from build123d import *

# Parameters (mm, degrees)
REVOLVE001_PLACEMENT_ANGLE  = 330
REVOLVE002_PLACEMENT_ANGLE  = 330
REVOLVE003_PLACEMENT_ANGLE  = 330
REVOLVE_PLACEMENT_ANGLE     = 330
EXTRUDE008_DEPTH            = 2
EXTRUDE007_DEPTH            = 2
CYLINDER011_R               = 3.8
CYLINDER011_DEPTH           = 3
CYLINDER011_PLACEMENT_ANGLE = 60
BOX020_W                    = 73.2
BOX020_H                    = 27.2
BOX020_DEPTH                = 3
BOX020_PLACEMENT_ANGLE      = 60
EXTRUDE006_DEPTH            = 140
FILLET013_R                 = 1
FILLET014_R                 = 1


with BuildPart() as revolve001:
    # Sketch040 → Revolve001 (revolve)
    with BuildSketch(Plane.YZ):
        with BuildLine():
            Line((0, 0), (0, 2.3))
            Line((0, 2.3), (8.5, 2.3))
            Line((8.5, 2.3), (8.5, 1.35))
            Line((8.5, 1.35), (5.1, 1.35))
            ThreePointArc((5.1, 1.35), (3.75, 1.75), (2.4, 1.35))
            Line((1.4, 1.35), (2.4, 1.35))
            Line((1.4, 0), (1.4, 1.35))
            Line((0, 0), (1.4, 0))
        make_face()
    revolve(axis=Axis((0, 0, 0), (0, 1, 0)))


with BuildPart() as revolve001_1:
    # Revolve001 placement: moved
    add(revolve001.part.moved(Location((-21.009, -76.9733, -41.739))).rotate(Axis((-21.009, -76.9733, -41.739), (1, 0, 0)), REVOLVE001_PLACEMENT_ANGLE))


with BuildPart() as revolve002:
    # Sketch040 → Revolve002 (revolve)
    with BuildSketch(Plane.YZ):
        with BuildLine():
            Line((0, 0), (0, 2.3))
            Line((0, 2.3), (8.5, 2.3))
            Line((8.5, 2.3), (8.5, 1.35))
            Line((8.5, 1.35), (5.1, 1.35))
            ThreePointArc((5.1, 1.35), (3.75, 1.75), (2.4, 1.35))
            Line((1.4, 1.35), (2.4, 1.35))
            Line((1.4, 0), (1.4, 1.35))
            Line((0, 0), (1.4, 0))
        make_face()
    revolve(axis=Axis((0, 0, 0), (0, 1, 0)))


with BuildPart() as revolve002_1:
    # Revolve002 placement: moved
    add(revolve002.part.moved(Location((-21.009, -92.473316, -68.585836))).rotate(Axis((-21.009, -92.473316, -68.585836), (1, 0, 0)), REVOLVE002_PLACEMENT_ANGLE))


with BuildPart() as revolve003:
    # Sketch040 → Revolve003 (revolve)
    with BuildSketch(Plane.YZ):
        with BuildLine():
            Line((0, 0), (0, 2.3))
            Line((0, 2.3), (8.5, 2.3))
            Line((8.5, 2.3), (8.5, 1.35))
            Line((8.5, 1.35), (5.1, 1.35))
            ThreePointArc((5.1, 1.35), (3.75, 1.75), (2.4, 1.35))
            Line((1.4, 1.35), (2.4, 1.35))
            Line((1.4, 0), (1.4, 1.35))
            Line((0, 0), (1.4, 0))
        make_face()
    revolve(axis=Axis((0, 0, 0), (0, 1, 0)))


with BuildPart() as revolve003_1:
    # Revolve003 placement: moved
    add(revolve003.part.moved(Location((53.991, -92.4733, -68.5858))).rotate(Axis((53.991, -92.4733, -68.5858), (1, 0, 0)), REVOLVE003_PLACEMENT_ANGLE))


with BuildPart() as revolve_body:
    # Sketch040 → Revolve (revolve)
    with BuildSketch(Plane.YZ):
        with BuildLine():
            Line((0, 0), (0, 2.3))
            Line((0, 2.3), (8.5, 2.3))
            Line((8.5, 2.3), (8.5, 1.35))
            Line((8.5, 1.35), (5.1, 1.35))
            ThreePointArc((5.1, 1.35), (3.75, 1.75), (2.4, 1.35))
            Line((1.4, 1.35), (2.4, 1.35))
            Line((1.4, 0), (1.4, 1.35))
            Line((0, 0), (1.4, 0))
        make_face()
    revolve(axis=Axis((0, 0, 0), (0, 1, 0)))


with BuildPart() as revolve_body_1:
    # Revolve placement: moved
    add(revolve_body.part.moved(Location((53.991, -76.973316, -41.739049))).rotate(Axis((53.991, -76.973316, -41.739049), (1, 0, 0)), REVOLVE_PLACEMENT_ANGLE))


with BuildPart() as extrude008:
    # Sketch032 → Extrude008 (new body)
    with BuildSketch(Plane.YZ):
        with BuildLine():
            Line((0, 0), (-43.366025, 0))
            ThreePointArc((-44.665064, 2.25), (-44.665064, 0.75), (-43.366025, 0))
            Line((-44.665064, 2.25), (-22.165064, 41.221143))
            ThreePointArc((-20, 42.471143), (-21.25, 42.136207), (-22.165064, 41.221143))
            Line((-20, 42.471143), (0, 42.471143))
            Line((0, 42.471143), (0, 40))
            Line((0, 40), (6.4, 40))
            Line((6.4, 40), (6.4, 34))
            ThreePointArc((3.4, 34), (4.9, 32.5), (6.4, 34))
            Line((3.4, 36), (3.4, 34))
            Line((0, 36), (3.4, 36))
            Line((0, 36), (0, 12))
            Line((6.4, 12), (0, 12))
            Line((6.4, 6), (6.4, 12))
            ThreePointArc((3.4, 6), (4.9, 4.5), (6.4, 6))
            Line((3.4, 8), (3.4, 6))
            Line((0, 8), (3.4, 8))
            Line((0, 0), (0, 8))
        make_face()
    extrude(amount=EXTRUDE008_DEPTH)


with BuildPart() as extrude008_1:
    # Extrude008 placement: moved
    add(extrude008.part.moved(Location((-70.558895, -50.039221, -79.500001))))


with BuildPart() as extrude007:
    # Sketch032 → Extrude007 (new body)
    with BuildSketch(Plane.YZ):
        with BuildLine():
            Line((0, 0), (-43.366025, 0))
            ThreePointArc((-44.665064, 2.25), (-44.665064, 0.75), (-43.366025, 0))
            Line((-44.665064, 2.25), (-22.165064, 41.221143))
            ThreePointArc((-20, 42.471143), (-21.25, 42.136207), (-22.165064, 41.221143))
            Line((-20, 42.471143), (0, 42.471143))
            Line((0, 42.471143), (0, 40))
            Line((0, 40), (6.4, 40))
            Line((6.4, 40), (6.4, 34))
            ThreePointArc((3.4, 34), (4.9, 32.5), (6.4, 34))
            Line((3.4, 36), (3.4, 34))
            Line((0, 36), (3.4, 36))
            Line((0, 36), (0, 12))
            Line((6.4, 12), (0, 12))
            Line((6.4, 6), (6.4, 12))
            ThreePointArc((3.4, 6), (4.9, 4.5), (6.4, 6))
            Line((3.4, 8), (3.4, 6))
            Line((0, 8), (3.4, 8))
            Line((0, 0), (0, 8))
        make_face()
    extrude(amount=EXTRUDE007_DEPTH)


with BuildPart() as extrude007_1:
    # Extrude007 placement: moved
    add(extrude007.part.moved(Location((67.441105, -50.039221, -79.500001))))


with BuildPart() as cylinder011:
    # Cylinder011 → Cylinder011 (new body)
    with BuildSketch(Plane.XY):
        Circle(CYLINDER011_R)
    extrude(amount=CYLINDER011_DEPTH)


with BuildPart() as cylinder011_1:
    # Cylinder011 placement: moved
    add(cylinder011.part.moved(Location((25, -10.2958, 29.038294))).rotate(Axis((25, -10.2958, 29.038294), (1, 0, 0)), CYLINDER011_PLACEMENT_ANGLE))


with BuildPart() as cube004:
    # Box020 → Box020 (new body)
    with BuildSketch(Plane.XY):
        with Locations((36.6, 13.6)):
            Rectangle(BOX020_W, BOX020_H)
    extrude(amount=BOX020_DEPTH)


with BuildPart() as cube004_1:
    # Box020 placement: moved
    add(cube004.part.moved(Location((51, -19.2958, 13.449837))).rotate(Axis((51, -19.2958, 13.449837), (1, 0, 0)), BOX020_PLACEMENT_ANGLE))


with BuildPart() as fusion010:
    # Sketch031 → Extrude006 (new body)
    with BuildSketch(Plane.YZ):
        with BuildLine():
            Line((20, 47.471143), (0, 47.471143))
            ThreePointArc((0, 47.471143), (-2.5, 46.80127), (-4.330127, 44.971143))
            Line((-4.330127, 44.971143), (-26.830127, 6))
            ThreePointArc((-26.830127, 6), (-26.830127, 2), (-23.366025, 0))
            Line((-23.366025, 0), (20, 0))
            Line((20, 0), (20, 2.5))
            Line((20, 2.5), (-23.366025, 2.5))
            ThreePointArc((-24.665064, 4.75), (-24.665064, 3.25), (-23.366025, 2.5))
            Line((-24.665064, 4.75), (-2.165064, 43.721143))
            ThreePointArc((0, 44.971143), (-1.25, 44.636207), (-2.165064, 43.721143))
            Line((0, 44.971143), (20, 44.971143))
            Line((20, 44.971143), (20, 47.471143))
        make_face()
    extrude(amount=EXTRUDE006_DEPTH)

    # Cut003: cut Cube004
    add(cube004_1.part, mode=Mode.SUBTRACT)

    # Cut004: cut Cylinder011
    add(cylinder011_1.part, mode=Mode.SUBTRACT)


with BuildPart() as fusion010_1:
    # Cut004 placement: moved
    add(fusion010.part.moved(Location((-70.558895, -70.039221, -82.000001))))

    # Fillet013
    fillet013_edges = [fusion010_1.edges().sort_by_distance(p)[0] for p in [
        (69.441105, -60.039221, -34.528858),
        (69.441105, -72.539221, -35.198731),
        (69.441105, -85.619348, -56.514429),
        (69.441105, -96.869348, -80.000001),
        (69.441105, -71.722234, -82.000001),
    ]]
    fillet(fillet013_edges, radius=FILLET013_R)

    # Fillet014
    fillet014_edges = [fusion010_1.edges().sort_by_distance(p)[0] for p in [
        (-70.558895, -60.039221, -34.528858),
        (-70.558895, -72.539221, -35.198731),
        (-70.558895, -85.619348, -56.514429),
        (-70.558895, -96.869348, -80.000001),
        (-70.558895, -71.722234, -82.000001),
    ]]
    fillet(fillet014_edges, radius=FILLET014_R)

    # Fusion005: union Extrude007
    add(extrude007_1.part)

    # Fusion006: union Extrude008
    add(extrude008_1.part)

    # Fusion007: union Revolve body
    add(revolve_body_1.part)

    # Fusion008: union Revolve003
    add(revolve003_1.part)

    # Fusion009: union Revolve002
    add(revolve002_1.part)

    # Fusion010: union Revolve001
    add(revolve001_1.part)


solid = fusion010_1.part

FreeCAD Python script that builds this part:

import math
import FreeCAD as App
import Part
import Sketcher
Q = App.Units.Quantity


def edges_at(feature, points):
    """Names of the edges that pass closest to the given points."""
    edges = feature.Shape.Edges
    near = lambda p: min(range(len(edges)), key=lambda i: edges[i].distToShape(Part.Vertex(*p))[0])
    return sorted({f"Edge{near(p) + 1}" for p in points})

doc = App.newDocument("Part")
body = doc.addObject("PartDesign::Body", "Body")

sketch1 = doc.addObject("Sketcher::SketchObject", "Sketch")
body.addObject(sketch1)
sketch1.AttachmentSupport = (doc.YZ_Plane, [""])
sketch1.MapMode = "FlatFace"
sketch1.addGeometry([
    Part.LineSegment(App.Vector(0, 2.3, 0), App.Vector(0, 0, 0)),
    Part.LineSegment(App.Vector(0, 0, 0), App.Vector(1.4, 0, 0)),
    Part.LineSegment(App.Vector(1.4, 0, 0), App.Vector(1.4, 1.4, 0)),
    Part.LineSegment(App.Vector(1.4, 1.4, 0), App.Vector(2.4, 1.4, 0)),
    Part.ArcOfCircle(Part.Circle(App.Vector(3.8, -0.7, 0), App.Vector(0, 0, 1), 2.5), math.radians(57), math.radians(123)),
    Part.LineSegment(App.Vector(5.1, 1.4, 0), App.Vector(8.5, 1.4, 0)),
    Part.LineSegment(App.Vector(8.5, 1.4, 0), App.Vector(8.5, 2.3, 0)),
    Part.LineSegment(App.Vector(8.5, 2.3, 0), App.Vector(0, 2.3, 0)),
], False)
sketch1.addConstraint([
    Sketcher.Constraint("Coincident", 0, 2, 1, 1),
    Sketcher.Constraint("Coincident", 1, 2, 2, 1),
    Sketcher.Constraint("Coincident", 2, 2, 3, 1),
    Sketcher.Constraint("Coincident", 3, 2, 4, 2),
    Sketcher.Constraint("Coincident", 4, 1, 5, 1),
    Sketcher.Constraint("Coincident", 5, 2, 6, 1),
    Sketcher.Constraint("Coincident", 6, 2, 7, 1),
    Sketcher.Constraint("Coincident", 7, 2, 0, 1),
    Sketcher.Constraint("Vertical", 0),
    Sketcher.Constraint("Horizontal", 1),
    Sketcher.Constraint("Vertical", 2),
    Sketcher.Constraint("Horizontal", 3),
    Sketcher.Constraint("Horizontal", 5),
    Sketcher.Constraint("Vertical", 6),
    Sketcher.Constraint("Horizontal", 7),
    Sketcher.Constraint("Coincident", 0, 2, -1, 1),
    Sketcher.Constraint("Horizontal", 3, 2, 4, 1),
    Sketcher.Constraint("DistanceX", 3, 1, 3, 2, Q("1 mm")),
    Sketcher.Constraint("DistanceX", 1, 1, 1, 2, Q("1.4 mm")),
    Sketcher.Constraint("DistanceX", 5, 1, 5, 2, Q("3.4 mm")),
    Sketcher.Constraint("DistanceX", 7, 2, 7, 1, Q("8.5 mm")),
    Sketcher.Constraint("DistanceY", 0, 2, 0, 1, Q("2.3 mm")),
    Sketcher.Constraint("DistanceY", 2, 1, 2, 2, Q("1.35 mm")),
    Sketcher.Constraint("Radius", 4, Q("2.478125 mm")),
])
revolution = doc.addObject("PartDesign::Revolution", "Revolution")
body.addObject(revolution)
revolution.Profile = sketch1
revolution.ReferenceAxis = (sketch1, ["H_Axis"])
revolution.Angle = 360
body2 = doc.addObject("PartDesign::Body", "Body001")
doc.recompute()

body.Placement = App.Placement(App.Vector(-21.009, -76.9733, -41.739), App.Rotation(App.Vector(1, 0, 0), 330))
boolean = doc.addObject("PartDesign::Boolean", "Boolean")
body2.addObject(boolean)
boolean.Type = "Fuse"
boolean.addObjects([body])
body3 = doc.addObject("PartDesign::Body", "Body002")

sketch2 = doc.addObject("Sketcher::SketchObject", "Sketch001")
body3.addObject(sketch2)
sketch2.AttachmentSupport = (doc.getObject("YZ_Plane002"), [""])
sketch2.MapMode = "FlatFace"
sketch2.addGeometry([
    Part.LineSegment(App.Vector(0, 2.3, 0), App.Vector(0, 0, 0)),
    Part.LineSegment(App.Vector(0, 0, 0), App.Vector(1.4, 0, 0)),
    Part.LineSegment(App.Vector(1.4, 0, 0), App.Vector(1.4, 1.4, 0)),
    Part.LineSegment(App.Vector(1.4, 1.4, 0), App.Vector(2.4, 1.4, 0)),
    Part.ArcOfCircle(Part.Circle(App.Vector(3.8, -0.7, 0), App.Vector(0, 0, 1), 2.5), math.radians(57), math.radians(123)),
    Part.LineSegment(App.Vector(5.1, 1.4, 0), App.Vector(8.5, 1.4, 0)),
    Part.LineSegment(App.Vector(8.5, 1.4, 0), App.Vector(8.5, 2.3, 0)),
    Part.LineSegment(App.Vector(8.5, 2.3, 0), App.Vector(0, 2.3, 0)),
], False)
sketch2.addConstraint([
    Sketcher.Constraint("Coincident", 0, 2, 1, 1),
    Sketcher.Constraint("Coincident", 1, 2, 2, 1),
    Sketcher.Constraint("Coincident", 2, 2, 3, 1),
    Sketcher.Constraint("Coincident", 3, 2, 4, 2),
    Sketcher.Constraint("Coincident", 4, 1, 5, 1),
    Sketcher.Constraint("Coincident", 5, 2, 6, 1),
    Sketcher.Constraint("Coincident", 6, 2, 7, 1),
    Sketcher.Constraint("Coincident", 7, 2, 0, 1),
    Sketcher.Constraint("Vertical", 0),
    Sketcher.Constraint("Horizontal", 1),
    Sketcher.Constraint("Vertical", 2),
    Sketcher.Constraint("Horizontal", 3),
    Sketcher.Constraint("Horizontal", 5),
    Sketcher.Constraint("Vertical", 6),
    Sketcher.Constraint("Horizontal", 7),
    Sketcher.Constraint("Coincident", 0, 2, -1, 1),
    Sketcher.Constraint("Horizontal", 3, 2, 4, 1),
    Sketcher.Constraint("DistanceX", 3, 1, 3, 2, Q("1 mm")),
    Sketcher.Constraint("DistanceX", 1, 1, 1, 2, Q("1.4 mm")),
    Sketcher.Constraint("DistanceX", 5, 1, 5, 2, Q("3.4 mm")),
    Sketcher.Constraint("DistanceX", 7, 2, 7, 1, Q("8.5 mm")),
    Sketcher.Constraint("DistanceY", 0, 2, 0, 1, Q("2.3 mm")),
    Sketcher.Constraint("DistanceY", 2, 1, 2, 2, Q("1.35 mm")),
    Sketcher.Constraint("Radius", 4, Q("2.478125 mm")),
])
revolution2 = doc.addObject("PartDesign::Revolution", "Revolution001")
body3.addObject(revolution2)
revolution2.Profile = sketch2
revolution2.ReferenceAxis = (sketch2, ["H_Axis"])
revolution2.Angle = 360
body4 = doc.addObject("PartDesign::Body", "Body003")
doc.recompute()

body3.Placement = App.Placement(App.Vector(-21.009, -92.473316, -68.585836), App.Rotation(App.Vector(1, 0, 0), 330))
boolean2 = doc.addObject("PartDesign::Boolean", "Boolean001")
body4.addObject(boolean2)
boolean2.Type = "Fuse"
boolean2.addObjects([body3])
body5 = doc.addObject("PartDesign::Body", "Body004")

sketch3 = doc.addObject("Sketcher::SketchObject", "Sketch002")
body5.addObject(sketch3)
sketch3.AttachmentSupport = (doc.getObject("YZ_Plane004"), [""])
sketch3.MapMode = "FlatFace"
sketch3.addGeometry([
    Part.LineSegment(App.Vector(0, 2.3, 0), App.Vector(0, 0, 0)),
    Part.LineSegment(App.Vector(0, 0, 0), App.Vector(1.4, 0, 0)),
    Part.LineSegment(App.Vector(1.4, 0, 0), App.Vector(1.4, 1.4, 0)),
    Part.LineSegment(App.Vector(1.4, 1.4, 0), App.Vector(2.4, 1.4, 0)),
    Part.ArcOfCircle(Part.Circle(App.Vector(3.8, -0.7, 0), App.Vector(0, 0, 1), 2.5), math.radians(57), math.radians(123)),
    Part.LineSegment(App.Vector(5.1, 1.4, 0), App.Vector(8.5, 1.4, 0)),
    Part.LineSegment(App.Vector(8.5, 1.4, 0), App.Vector(8.5, 2.3, 0)),
    Part.LineSegment(App.Vector(8.5, 2.3, 0), App.Vector(0, 2.3, 0)),
], False)
sketch3.addConstraint([
    Sketcher.Constraint("Coincident", 0, 2, 1, 1),
    Sketcher.Constraint("Coincident", 1, 2, 2, 1),
    Sketcher.Constraint("Coincident", 2, 2, 3, 1),
    Sketcher.Constraint("Coincident", 3, 2, 4, 2),
    Sketcher.Constraint("Coincident", 4, 1, 5, 1),
    Sketcher.Constraint("Coincident", 5, 2, 6, 1),
    Sketcher.Constraint("Coincident", 6, 2, 7, 1),
    Sketcher.Constraint("Coincident", 7, 2, 0, 1),
    Sketcher.Constraint("Vertical", 0),
    Sketcher.Constraint("Horizontal", 1),
    Sketcher.Constraint("Vertical", 2),
    Sketcher.Constraint("Horizontal", 3),
    Sketcher.Constraint("Horizontal", 5),
    Sketcher.Constraint("Vertical", 6),
    Sketcher.Constraint("Horizontal", 7),
    Sketcher.Constraint("Coincident", 0, 2, -1, 1),
    Sketcher.Constraint("Horizontal", 3, 2, 4, 1),
    Sketcher.Constraint("DistanceX", 3, 1, 3, 2, Q("1 mm")),
    Sketcher.Constraint("DistanceX", 1, 1, 1, 2, Q("1.4 mm")),
    Sketcher.Constraint("DistanceX", 5, 1, 5, 2, Q("3.4 mm")),
    Sketcher.Constraint("DistanceX", 7, 2, 7, 1, Q("8.5 mm")),
    Sketcher.Constraint("DistanceY", 0, 2, 0, 1, Q("2.3 mm")),
    Sketcher.Constraint("DistanceY", 2, 1, 2, 2, Q("1.35 mm")),
    Sketcher.Constraint("Radius", 4, Q("2.478125 mm")),
])
revolution3 = doc.addObject("PartDesign::Revolution", "Revolution002")
body5.addObject(revolution3)
revolution3.Profile = sketch3
revolution3.ReferenceAxis = (sketch3, ["H_Axis"])
revolution3.Angle = 360
body6 = doc.addObject("PartDesign::Body", "Body005")
doc.recompute()

body5.Placement = App.Placement(App.Vector(53.991, -92.4733, -68.5858), App.Rotation(App.Vector(1, 0, 0), 330))
boolean3 = doc.addObject("PartDesign::Boolean", "Boolean002")
body6.addObject(boolean3)
boolean3.Type = "Fuse"
boolean3.addObjects([body5])
body7 = doc.addObject("PartDesign::Body", "Body006")

sketch4 = doc.addObject("Sketcher::SketchObject", "Sketch003")
body7.addObject(sketch4)
sketch4.AttachmentSupport = (doc.getObject("YZ_Plane006"), [""])
sketch4.MapMode = "FlatFace"
sketch4.addGeometry([
    Part.LineSegment(App.Vector(0, 2.3, 0), App.Vector(0, 0, 0)),
    Part.LineSegment(App.Vector(0, 0, 0), App.Vector(1.4, 0, 0)),
    Part.LineSegment(App.Vector(1.4, 0, 0), App.Vector(1.4, 1.4, 0)),
    Part.LineSegment(App.Vector(1.4, 1.4, 0), App.Vector(2.4, 1.4, 0)),
    Part.ArcOfCircle(Part.Circle(App.Vector(3.8, -0.7, 0), App.Vector(0, 0, 1), 2.5), math.radians(57), math.radians(123)),
    Part.LineSegment(App.Vector(5.1, 1.4, 0), App.Vector(8.5, 1.4, 0)),
    Part.LineSegment(App.Vector(8.5, 1.4, 0), App.Vector(8.5, 2.3, 0)),
    Part.LineSegment(App.Vector(8.5, 2.3, 0), App.Vector(0, 2.3, 0)),
], False)
sketch4.addConstraint([
    Sketcher.Constraint("Coincident", 0, 2, 1, 1),
    Sketcher.Constraint("Coincident", 1, 2, 2, 1),
    Sketcher.Constraint("Coincident", 2, 2, 3, 1),
    Sketcher.Constraint("Coincident", 3, 2, 4, 2),
    Sketcher.Constraint("Coincident", 4, 1, 5, 1),
    Sketcher.Constraint("Coincident", 5, 2, 6, 1),
    Sketcher.Constraint("Coincident", 6, 2, 7, 1),
    Sketcher.Constraint("Coincident", 7, 2, 0, 1),
    Sketcher.Constraint("Vertical", 0),
    Sketcher.Constraint("Horizontal", 1),
    Sketcher.Constraint("Vertical", 2),
    Sketcher.Constraint("Horizontal", 3),
    Sketcher.Constraint("Horizontal", 5),
    Sketcher.Constraint("Vertical", 6),
    Sketcher.Constraint("Horizontal", 7),
    Sketcher.Constraint("Coincident", 0, 2, -1, 1),
    Sketcher.Constraint("Horizontal", 3, 2, 4, 1),
    Sketcher.Constraint("DistanceX", 3, 1, 3, 2, Q("1 mm")),
    Sketcher.Constraint("DistanceX", 1, 1, 1, 2, Q("1.4 mm")),
    Sketcher.Constraint("DistanceX", 5, 1, 5, 2, Q("3.4 mm")),
    Sketcher.Constraint("DistanceX", 7, 2, 7, 1, Q("8.5 mm")),
    Sketcher.Constraint("DistanceY", 0, 2, 0, 1, Q("2.3 mm")),
    Sketcher.Constraint("DistanceY", 2, 1, 2, 2, Q("1.35 mm")),
    Sketcher.Constraint("Radius", 4, Q("2.478125 mm")),
])
revolution4 = doc.addObject("PartDesign::Revolution", "Revolution003")
body7.addObject(revolution4)
revolution4.Profile = sketch4
revolution4.ReferenceAxis = (sketch4, ["H_Axis"])
revolution4.Angle = 360
body8 = doc.addObject("PartDesign::Body", "Body007")
doc.recompute()

body7.Placement = App.Placement(App.Vector(53.991, -76.973316, -41.739049), App.Rotation(App.Vector(1, 0, 0), 330))
boolean4 = doc.addObject("PartDesign::Boolean", "Boolean003")
body8.addObject(boolean4)
boolean4.Type = "Fuse"
boolean4.addObjects([body7])
body9 = doc.addObject("PartDesign::Body", "Body008")

sketch5 = doc.addObject("Sketcher::SketchObject", "Sketch004")
body9.addObject(sketch5)
sketch5.AttachmentSupport = (doc.getObject("YZ_Plane008"), [""])
sketch5.MapMode = "FlatFace"
sketch5.addGeometry([
    Part.LineSegment(App.Vector(-43.4, 0, 0), App.Vector(0, 0, 0)),
    Part.LineSegment(App.Vector(0, 0, 0), App.Vector(0, 8, 0)),
    Part.LineSegment(App.Vector(0, 8, 0), App.Vector(3.4, 8, 0)),
    Part.LineSegment(App.Vector(3.4, 8, 0), App.Vector(3.4, 6, 0)),
    Part.ArcOfCircle(Part.Circle(App.Vector(4.9, 6, 0), App.Vector(0, 0, 1), 1.5), math.radians(180), math.radians(360)),
    Part.LineSegment(App.Vector(6.4, 6, 0), App.Vector(6.4, 12, 0)),
    Part.LineSegment(App.Vector(6.4, 12, 0), App.Vector(0, 12, 0)),
    Part.LineSegment(App.Vector(0, 12, 0), App.Vector(0, 36, 0)),
    Part.LineSegment(App.Vector(0, 36, 0), App.Vector(3.4, 36, 0)),
    Part.LineSegment(App.Vector(3.4, 36, 0), App.Vector(3.4, 34, 0)),
    Part.ArcOfCircle(Part.Circle(App.Vector(4.9, 34, 0), App.Vector(0, 0, 1), 1.5), math.radians(180), math.radians(360)),
    Part.LineSegment(App.Vector(6.4, 34, 0), App.Vector(6.4, 40, 0)),
    Part.LineSegment(App.Vector(6.4, 40, 0), App.Vector(0, 40, 0)),
    Part.LineSegment(App.Vector(0, 40, 0), App.Vector(0, 42.5, 0)),
    Part.LineSegment(App.Vector(0, 42.5, 0), App.Vector(-20, 42.5, 0)),
    Part.ArcOfCircle(Part.Circle(App.Vector(-20, 40, 0), App.Vector(0, 0, 1), 2.5), math.radians(90), math.radians(150)),
    Part.LineSegment(App.Vector(-22.2, 41.2, 0), App.Vector(-44.7, 2.2, 0)),
    Part.ArcOfCircle(Part.Circle(App.Vector(-43.4, 1.5, 0), App.Vector(0, 0, 1), 1.5), math.radians(150), math.radians(270)),
], False)
sketch5.addConstraint([
    Sketcher.Constraint("Coincident", 0, 2, 1, 1),
    Sketcher.Constraint("Coincident", 1, 2, 2, 1),
    Sketcher.Constraint("Coincident", 2, 2, 3, 1),
    Sketcher.Constraint("Tangent", 3, 2, 4, 1),
    Sketcher.Constraint("Tangent", 4, 2, 5, 1),
    Sketcher.Constraint("Coincident", 5, 2, 6, 1),
    Sketcher.Constraint("Coincident", 6, 2, 7, 1),
    Sketcher.Constraint("Coincident", 7, 2, 8, 1),
    Sketcher.Constraint("Coincident", 8, 2, 9, 1),
    Sketcher.Constraint("Tangent", 9, 2, 10, 1),
    Sketcher.Constraint("Tangent", 10, 2, 11, 1),
    Sketcher.Constraint("Coincident", 11, 2, 12, 1),
    Sketcher.Constraint("Coincident", 12, 2, 13, 1),
    Sketcher.Constraint("Coincident", 13, 2, 14, 1),
    Sketcher.Constraint("Tangent", 14, 2, 15, 1),
    Sketcher.Constraint("Tangent", 15, 2, 16, 1),
    Sketcher.Constraint("Tangent", 16, 2, 17, 1),
    Sketcher.Constraint("Tangent", 17, 2, 0, 1),
    Sketcher.Constraint("Horizontal", 0),
    Sketcher.Constraint("Vertical", 1),
    Sketcher.Constraint("Horizontal", 2),
    Sketcher.Constraint("Vertical", 3),
    Sketcher.Constraint("Vertical", 5),
    Sketcher.Constraint("Horizontal", 6),
    Sketcher.Constraint("Vertical", 7),
    Sketcher.Constraint("Horizontal", 8),
    Sketcher.Constraint("Vertical", 9),
    Sketcher.Constraint("Vertical", 11),
    Sketcher.Constraint("Horizontal", 12),
    Sketcher.Constraint("Vertical", 13),
    Sketcher.Constraint("Horizontal", 14),
    Sketcher.Constraint("Coincident", 0, 2, -1, 1),
    Sketcher.Constraint("Equal", 4, 10),
    Sketcher.Constraint("Equal", 10, 17),
    Sketcher.Constraint("PointOnObject", 6, 2, -2),
    Sketcher.Constraint("PointOnObject", 12, 2, -2),
    Sketcher.Constraint("Vertical", 4, 3, 10, 3),
    Sketcher.Constraint("Equal", 3, 9),
    Sketcher.Constraint("Equal", 5, 11),
    Sketcher.Constraint("Radius", 4, Q("1.5 mm")),
    Sketcher.Constraint("Radius", 15, Q("2.499999 mm")),
    Sketcher.Constraint("DistanceX", 14, 2, 14, 1, Q("20 mm")),
    Sketcher.Constraint("DistanceY", 1, 1, 1, 2, Q("8 mm")),
    Sketcher.Constraint("DistanceY", 3, 2, 3, 1, Q("2 mm")),
    Sketcher.Constraint("DistanceY", 5, 1, 5, 2, Q("6 mm")),
    Sketcher.Constraint("DistanceY", 7, 1, 7, 2, Q("24 mm")),
    Sketcher.Constraint("Angle", 16, Q("-120 deg")),
    Sketcher.Constraint("Distance", 16, Q("45 mm")),
    Sketcher.Constraint("DistanceX", 2, 1, 2, 2, Q("3.4 mm")),
])
pad1 = doc.addObject("PartDesign::Pad", "Pad")
body9.addObject(pad1)
pad1.Profile = sketch5
pad1.Length = 2
body10 = doc.addObject("PartDesign::Body", "Body009")
doc.recompute()

body9.Placement = App.Placement(App.Vector(-70.558895, -50.039221, -79.500001), App.Rotation(App.Vector(0, 0, 1), 0))
boolean5 = doc.addObject("PartDesign::Boolean", "Boolean004")
body10.addObject(boolean5)
boolean5.Type = "Fuse"
boolean5.addObjects([body9])
body11 = doc.addObject("PartDesign::Body", "Body010")

sketch6 = doc.addObject("Sketcher::SketchObject", "Sketch005")
body11.addObject(sketch6)
sketch6.AttachmentSupport = (doc.getObject("YZ_Plane010"), [""])
sketch6.MapMode = "FlatFace"
sketch6.addGeometry([
    Part.LineSegment(App.Vector(-43.4, 0, 0), App.Vector(0, 0, 0)),
    Part.LineSegment(App.Vector(0, 0, 0), App.Vector(0, 8, 0)),
    Part.LineSegment(App.Vector(0, 8, 0), App.Vector(3.4, 8, 0)),
    Part.LineSegment(App.Vector(3.4, 8, 0), App.Vector(3.4, 6, 0)),
    Part.ArcOfCircle(Part.Circle(App.Vector(4.9, 6, 0), App.Vector(0, 0, 1), 1.5), math.radians(180), math.radians(360)),
    Part.LineSegment(App.Vector(6.4, 6, 0), App.Vector(6.4, 12, 0)),
    Part.LineSegment(App.Vector(6.4, 12, 0), App.Vector(0, 12, 0)),
    Part.LineSegment(App.Vector(0, 12, 0), App.Vector(0, 36, 0)),
    Part.LineSegment(App.Vector(0, 36, 0), App.Vector(3.4, 36, 0)),
    Part.LineSegment(App.Vector(3.4, 36, 0), App.Vector(3.4, 34, 0)),
    Part.ArcOfCircle(Part.Circle(App.Vector(4.9, 34, 0), App.Vector(0, 0, 1), 1.5), math.radians(180), math.radians(360)),
    Part.LineSegment(App.Vector(6.4, 34, 0), App.Vector(6.4, 40, 0)),
    Part.LineSegment(App.Vector(6.4, 40, 0), App.Vector(0, 40, 0)),
    Part.LineSegment(App.Vector(0, 40, 0), App.Vector(0, 42.5, 0)),
    Part.LineSegment(App.Vector(0, 42.5, 0), App.Vector(-20, 42.5, 0)),
    Part.ArcOfCircle(Part.Circle(App.Vector(-20, 40, 0), App.Vector(0, 0, 1), 2.5), math.radians(90), math.radians(150)),
    Part.LineSegment(App.Vector(-22.2, 41.2, 0), App.Vector(-44.7, 2.2, 0)),
    Part.ArcOfCircle(Part.Circle(App.Vector(-43.4, 1.5, 0), App.Vector(0, 0, 1), 1.5), math.radians(150), math.radians(270)),
], False)
sketch6.addConstraint([
    Sketcher.Constraint("Coincident", 0, 2, 1, 1),
    Sketcher.Constraint("Coincident", 1, 2, 2, 1),
    Sketcher.Constraint("Coincident", 2, 2, 3, 1),
    Sketcher.Constraint("Tangent", 3, 2, 4, 1),
    Sketcher.Constraint("Tangent", 4, 2, 5, 1),
    Sketcher.Constraint("Coincident", 5, 2, 6, 1),
    Sketcher.Constraint("Coincident", 6, 2, 7, 1),
    Sketcher.Constraint("Coincident", 7, 2, 8, 1),
    Sketcher.Constraint("Coincident", 8, 2, 9, 1),
    Sketcher.Constraint("Tangent", 9, 2, 10, 1),
    Sketcher.Constraint("Tangent", 10, 2, 11, 1),
    Sketcher.Constraint("Coincident", 11, 2, 12, 1),
    Sketcher.Constraint("Coincident", 12, 2, 13, 1),
    Sketcher.Constraint("Coincident", 13, 2, 14, 1),
    Sketcher.Constraint("Tangent", 14, 2, 15, 1),
    Sketcher.Constraint("Tangent", 15, 2, 16, 1),
    Sketcher.Constraint("Tangent", 16, 2, 17, 1),
    Sketcher.Constraint("Tangent", 17, 2, 0, 1),
    Sketcher.Constraint("Horizontal", 0),
    Sketcher.Constraint("Vertical", 1),
    Sketcher.Constraint("Horizontal", 2),
    Sketcher.Constraint("Vertical", 3),
    Sketcher.Constraint("Vertical", 5),
    Sketcher.Constraint("Horizontal", 6),
    Sketcher.Constraint("Vertical", 7),
    Sketcher.Constraint("Horizontal", 8),
    Sketcher.Constraint("Vertical", 9),
    Sketcher.Constraint("Vertical", 11),
    Sketcher.Constraint("Horizontal", 12),
    Sketcher.Constraint("Vertical", 13),
    Sketcher.Constraint("Horizontal", 14),
    Sketcher.Constraint("Coincident", 0, 2, -1, 1),
    Sketcher.Constraint("Equal", 4, 10),
    Sketcher.Constraint("Equal", 10, 17),
    Sketcher.Constraint("PointOnObject", 6, 2, -2),
    Sketcher.Constraint("PointOnObject", 12, 2, -2),
    Sketcher.Constraint("Vertical", 4, 3, 10, 3),
    Sketcher.Constraint("Equal", 3, 9),
    Sketcher.Constraint("Equal", 5, 11),
    Sketcher.Constraint("Radius", 4, Q("1.5 mm")),
    Sketcher.Constraint("Radius", 15, Q("2.499999 mm")),
    Sketcher.Constraint("DistanceX", 14, 2, 14, 1, Q("20 mm")),
    Sketcher.Constraint("DistanceY", 1, 1, 1, 2, Q("8 mm")),
    Sketcher.Constraint("DistanceY", 3, 2, 3, 1, Q("2 mm")),
    Sketcher.Constraint("DistanceY", 5, 1, 5, 2, Q("6 mm")),
    Sketcher.Constraint("DistanceY", 7, 1, 7, 2, Q("24 mm")),
    Sketcher.Constraint("Angle", 16, Q("-120 deg")),
    Sketcher.Constraint("Distance", 16, Q("45 mm")),
    Sketcher.Constraint("DistanceX", 2, 1, 2, 2, Q("3.4 mm")),
])
pad2 = doc.addObject("PartDesign::Pad", "Pad001")
body11.addObject(pad2)
pad2.Profile = sketch6
pad2.Length = 2
body12 = doc.addObject("PartDesign::Body", "Body011")
doc.recompute()

body11.Placement = App.Placement(App.Vector(67.441105, -50.039221, -79.500001), App.Rotation(App.Vector(0, 0, 1), 0))
boolean6 = doc.addObject("PartDesign::Boolean", "Boolean005")
body12.addObject(boolean6)
boolean6.Type = "Fuse"
boolean6.addObjects([body11])
body13 = doc.addObject("PartDesign::Body", "Body012")

sketch7 = doc.addObject("Sketcher::SketchObject", "Sketch006")
body13.addObject(sketch7)
sketch7.AttachmentSupport = (doc.getObject("XY_Plane012"), [""])
sketch7.MapMode = "FlatFace"
sketch7.addGeometry(Part.Circle(App.Vector(0, 0, 0), App.Vector(0, 0, 1), 3.8), False)
sketch7.addConstraint([
    Sketcher.Constraint("Coincident", 0, 3, -1, 1),
    Sketcher.Constraint("Diameter", 0, Q("7.6 mm")),
])
pad3 = doc.addObject("PartDesign::Pad", "Pad002")
body13.addObject(pad3)
pad3.Profile = sketch7
pad3.Length = 3
body14 = doc.addObject("PartDesign::Body", "Body013")
doc.recompute()

body13.Placement = App.Placement(App.Vector(25, -10.2958, 29.038294), App.Rotation(App.Vector(1, 0, 0), 60))
boolean7 = doc.addObject("PartDesign::Boolean", "Boolean006")
body14.addObject(boolean7)
boolean7.Type = "Fuse"
boolean7.addObjects([body13])
body15 = doc.addObject("PartDesign::Body", "Body014")

sketch8 = doc.addObject("Sketcher::SketchObject", "Sketch007")
body15.addObject(sketch8)
sketch8.AttachmentSupport = (doc.getObject("XY_Plane014"), [""])
sketch8.MapMode = "FlatFace"
sketch8.addGeometry([
    Part.LineSegment(App.Vector(0, 27, 0), App.Vector(0, 0, 0)),
    Part.LineSegment(App.Vector(0, 0, 0), App.Vector(73, 0, 0)),
    Part.LineSegment(App.Vector(73, 0, 0), App.Vector(73, 27, 0)),
    Part.LineSegment(App.Vector(73, 27, 0), App.Vector(0, 27, 0)),
], False)
sketch8.addConstraint([
    Sketcher.Constraint("Coincident", 0, 2, 1, 1),
    Sketcher.Constraint("Coincident", 1, 2, 2, 1),
    Sketcher.Constraint("Coincident", 2, 2, 3, 1),
    Sketcher.Constraint("Coincident", 3, 2, 0, 1),
    Sketcher.Constraint("Vertical", 0),
    Sketcher.Constraint("Horizontal", 1),
    Sketcher.Constraint("Vertical", 2),
    Sketcher.Constraint("Horizontal", 3),
    Sketcher.Constraint("Coincident", 0, 2, -1, 1),
    Sketcher.Constraint("DistanceX", 1, 1, 1, 2, Q("73.2 mm")),
    Sketcher.Constraint("DistanceY", 0, 2, 0, 1, Q("27.2 mm")),
])
pad4 = doc.addObject("PartDesign::Pad", "Pad003")
body15.addObject(pad4)
pad4.Profile = sketch8
pad4.Length = 3
body16 = doc.addObject("PartDesign::Body", "Body015")
doc.recompute()

body15.Placement = App.Placement(App.Vector(51, -19.2958, 13.449837), App.Rotation(App.Vector(1, 0, 0), 60))
boolean8 = doc.addObject("PartDesign::Boolean", "Boolean007")
body16.addObject(boolean8)
boolean8.Type = "Fuse"
boolean8.addObjects([body15])
body17 = doc.addObject("PartDesign::Body", "Body016")

sketch9 = doc.addObject("Sketcher::SketchObject", "Sketch008")
body17.addObject(sketch9)
sketch9.AttachmentSupport = (doc.getObject("YZ_Plane016"), [""])
sketch9.MapMode = "FlatFace"
sketch9.addGeometry([
    Part.LineSegment(App.Vector(20, 47.5, 0), App.Vector(0, 47.5, 0)),
    Part.ArcOfCircle(Part.Circle(App.Vector(0, 42.5, 0), App.Vector(0, 0, 1), 5), math.radians(90), math.radians(150)),
    Part.LineSegment(App.Vector(-4.3, 45, 0), App.Vector(-26.8, 6, 0)),
    Part.ArcOfCircle(Part.Circle(App.Vector(-23.4, 4, 0), App.Vector(0, 0, 1), 4), math.radians(150), math.radians(270)),
    Part.LineSegment(App.Vector(-23.4, 0, 0), App.Vector(20, 0, 0)),
    Part.LineSegment(App.Vector(20, 0, 0), App.Vector(20, 2.5, 0)),
    Part.LineSegment(App.Vector(20, 2.5, 0), App.Vector(-23.4, 2.5, 0)),
    Part.ArcOfCircle(Part.Circle(App.Vector(-23.4, 4, 0), App.Vector(0, 0, 1), 1.5), math.radians(150), math.radians(270)),
    Part.LineSegment(App.Vector(-24.7, 4.8, 0), App.Vector(-2.2, 43.7, 0)),
    Part.ArcOfCircle(Part.Circle(App.Vector(0, 42.5, 0), App.Vector(0, 0, 1), 2.5), math.radians(90), math.radians(150)),
    Part.LineSegment(App.Vector(0, 45, 0), App.Vector(20, 45, 0)),
    Part.LineSegment(App.Vector(20, 45, 0), App.Vector(20, 47.5, 0)),
], False)
sketch9.addConstraint([
    Sketcher.Constraint("Tangent", 0, 2, 1, 1),
    Sketcher.Constraint("Tangent", 1, 2, 2, 1),
    Sketcher.Constraint("Tangent", 2, 2, 3, 1),
    Sketcher.Constraint("Tangent", 3, 2, 4, 1),
    Sketcher.Constraint("Coincident", 4, 2, 5, 1),
    Sketcher.Constraint("Coincident", 5, 2, 6, 1),
    Sketcher.Constraint("Tangent", 6, 2, 7, 2),
    Sketcher.Constraint("Tangent", 7, 1, 8, 1),
    Sketcher.Constraint("Tangent", 8, 2, 9, 2),
    Sketcher.Constraint("Tangent", 9, 1, 10, 1),
    Sketcher.Constraint("Coincident", 10, 2, 11, 1),
    Sketcher.Constraint("Coincident", 11, 2, 0, 1),
    Sketcher.Constraint("Horizontal", 0),
    Sketcher.Constraint("Horizontal", 4),
    Sketcher.Constraint("Vertical", 5),
    Sketcher.Constraint("Horizontal", 6),
    Sketcher.Constraint("Horizontal", 10),
    Sketcher.Constraint("Vertical", 11),
    Sketcher.Constraint("Coincident", 7, 3, 3, 3),
    Sketcher.Constraint("Coincident", 9, 3, 1, 3),
    Sketcher.Constraint("PointOnObject", 1, 3, -2),
    Sketcher.Constraint("PointOnObject", 3, 2, -1),
    Sketcher.Constraint("Parallel", 2, 8),
    Sketcher.Constraint("Horizontal", 1, 2, 9, 1),
    Sketcher.Constraint("Vertical", 5, 2, 10, 2),
    Sketcher.Constraint("Radius", 1, Q("5 mm")),
    Sketcher.Constraint("Radius", 3, Q("4 mm")),
    Sketcher.Constraint("Radius", 7, Q("1.5 mm")),
    Sketcher.Constraint("DistanceX", 0, 2, 0, 1, Q("20 mm")),
    Sketcher.Constraint("Distance", 2, Q("45 mm")),
])
pad5 = doc.addObject("PartDesign::Pad", "Pad004")
body17.addObject(pad5)
pad5.Profile = sketch9
pad5.Length = 140
doc.recompute()

boolean9 = doc.addObject("PartDesign::Boolean", "Boolean008")
body17.addObject(boolean9)
boolean9.Type = "Cut"
boolean9.addObjects([body16])
doc.recompute()

boolean10 = doc.addObject("PartDesign::Boolean", "Boolean009")
body17.addObject(boolean10)
boolean10.Type = "Cut"
boolean10.addObjects([body14])
body18 = doc.addObject("PartDesign::Body", "Body017")
doc.recompute()

body17.Placement = App.Placement(App.Vector(-70.558895, -70.039221, -82.000001), App.Rotation(App.Vector(0, 0, 1), 0))
boolean11 = doc.addObject("PartDesign::Boolean", "Boolean010")
body18.addObject(boolean11)
boolean11.Type = "Fuse"
boolean11.addObjects([body17])
doc.recompute()

fillet = doc.addObject("PartDesign::Fillet", "Fillet")
body18.addObject(fillet)
fillet.Base = (boolean11, edges_at(boolean11, [
    (69.441, -60.039, -34.529),
    (69.441, -72.539, -35.199),
    (69.441, -85.619, -56.514),
    (69.441, -96.869, -80),
    (69.441, -71.722, -82),
]))
fillet.Radius = 1
doc.recompute()

fillet2 = doc.addObject("PartDesign::Fillet", "Fillet001")
body18.addObject(fillet2)
fillet2.Base = (fillet, edges_at(fillet, [
    (-70.559, -60.039, -34.529),
    (-70.559, -72.539, -35.199),
    (-70.559, -85.619, -56.514),
    (-70.559, -96.869, -80),
    (-70.559, -71.722, -82),
]))
fillet2.Radius = 1
doc.recompute()

boolean12 = doc.addObject("PartDesign::Boolean", "Boolean011")
body18.addObject(boolean12)
boolean12.Type = "Fuse"
boolean12.addObjects([body12])
doc.recompute()

boolean13 = doc.addObject("PartDesign::Boolean", "Boolean012")
body18.addObject(boolean13)
boolean13.Type = "Fuse"
boolean13.addObjects([body10])
doc.recompute()

boolean14 = doc.addObject("PartDesign::Boolean", "Boolean013")
body18.addObject(boolean14)
boolean14.Type = "Fuse"
boolean14.addObjects([body8])
doc.recompute()

boolean15 = doc.addObject("PartDesign::Boolean", "Boolean014")
body18.addObject(boolean15)
boolean15.Type = "Fuse"
boolean15.addObjects([body6])
doc.recompute()

boolean16 = doc.addObject("PartDesign::Boolean", "Boolean015")
body18.addObject(boolean16)
boolean16.Type = "Fuse"
boolean16.addObjects([body4])
doc.recompute()

boolean17 = doc.addObject("PartDesign::Boolean", "Boolean016")
body18.addObject(boolean17)
boolean17.Type = "Fuse"
boolean17.addObjects([body2])

doc.recompute()
